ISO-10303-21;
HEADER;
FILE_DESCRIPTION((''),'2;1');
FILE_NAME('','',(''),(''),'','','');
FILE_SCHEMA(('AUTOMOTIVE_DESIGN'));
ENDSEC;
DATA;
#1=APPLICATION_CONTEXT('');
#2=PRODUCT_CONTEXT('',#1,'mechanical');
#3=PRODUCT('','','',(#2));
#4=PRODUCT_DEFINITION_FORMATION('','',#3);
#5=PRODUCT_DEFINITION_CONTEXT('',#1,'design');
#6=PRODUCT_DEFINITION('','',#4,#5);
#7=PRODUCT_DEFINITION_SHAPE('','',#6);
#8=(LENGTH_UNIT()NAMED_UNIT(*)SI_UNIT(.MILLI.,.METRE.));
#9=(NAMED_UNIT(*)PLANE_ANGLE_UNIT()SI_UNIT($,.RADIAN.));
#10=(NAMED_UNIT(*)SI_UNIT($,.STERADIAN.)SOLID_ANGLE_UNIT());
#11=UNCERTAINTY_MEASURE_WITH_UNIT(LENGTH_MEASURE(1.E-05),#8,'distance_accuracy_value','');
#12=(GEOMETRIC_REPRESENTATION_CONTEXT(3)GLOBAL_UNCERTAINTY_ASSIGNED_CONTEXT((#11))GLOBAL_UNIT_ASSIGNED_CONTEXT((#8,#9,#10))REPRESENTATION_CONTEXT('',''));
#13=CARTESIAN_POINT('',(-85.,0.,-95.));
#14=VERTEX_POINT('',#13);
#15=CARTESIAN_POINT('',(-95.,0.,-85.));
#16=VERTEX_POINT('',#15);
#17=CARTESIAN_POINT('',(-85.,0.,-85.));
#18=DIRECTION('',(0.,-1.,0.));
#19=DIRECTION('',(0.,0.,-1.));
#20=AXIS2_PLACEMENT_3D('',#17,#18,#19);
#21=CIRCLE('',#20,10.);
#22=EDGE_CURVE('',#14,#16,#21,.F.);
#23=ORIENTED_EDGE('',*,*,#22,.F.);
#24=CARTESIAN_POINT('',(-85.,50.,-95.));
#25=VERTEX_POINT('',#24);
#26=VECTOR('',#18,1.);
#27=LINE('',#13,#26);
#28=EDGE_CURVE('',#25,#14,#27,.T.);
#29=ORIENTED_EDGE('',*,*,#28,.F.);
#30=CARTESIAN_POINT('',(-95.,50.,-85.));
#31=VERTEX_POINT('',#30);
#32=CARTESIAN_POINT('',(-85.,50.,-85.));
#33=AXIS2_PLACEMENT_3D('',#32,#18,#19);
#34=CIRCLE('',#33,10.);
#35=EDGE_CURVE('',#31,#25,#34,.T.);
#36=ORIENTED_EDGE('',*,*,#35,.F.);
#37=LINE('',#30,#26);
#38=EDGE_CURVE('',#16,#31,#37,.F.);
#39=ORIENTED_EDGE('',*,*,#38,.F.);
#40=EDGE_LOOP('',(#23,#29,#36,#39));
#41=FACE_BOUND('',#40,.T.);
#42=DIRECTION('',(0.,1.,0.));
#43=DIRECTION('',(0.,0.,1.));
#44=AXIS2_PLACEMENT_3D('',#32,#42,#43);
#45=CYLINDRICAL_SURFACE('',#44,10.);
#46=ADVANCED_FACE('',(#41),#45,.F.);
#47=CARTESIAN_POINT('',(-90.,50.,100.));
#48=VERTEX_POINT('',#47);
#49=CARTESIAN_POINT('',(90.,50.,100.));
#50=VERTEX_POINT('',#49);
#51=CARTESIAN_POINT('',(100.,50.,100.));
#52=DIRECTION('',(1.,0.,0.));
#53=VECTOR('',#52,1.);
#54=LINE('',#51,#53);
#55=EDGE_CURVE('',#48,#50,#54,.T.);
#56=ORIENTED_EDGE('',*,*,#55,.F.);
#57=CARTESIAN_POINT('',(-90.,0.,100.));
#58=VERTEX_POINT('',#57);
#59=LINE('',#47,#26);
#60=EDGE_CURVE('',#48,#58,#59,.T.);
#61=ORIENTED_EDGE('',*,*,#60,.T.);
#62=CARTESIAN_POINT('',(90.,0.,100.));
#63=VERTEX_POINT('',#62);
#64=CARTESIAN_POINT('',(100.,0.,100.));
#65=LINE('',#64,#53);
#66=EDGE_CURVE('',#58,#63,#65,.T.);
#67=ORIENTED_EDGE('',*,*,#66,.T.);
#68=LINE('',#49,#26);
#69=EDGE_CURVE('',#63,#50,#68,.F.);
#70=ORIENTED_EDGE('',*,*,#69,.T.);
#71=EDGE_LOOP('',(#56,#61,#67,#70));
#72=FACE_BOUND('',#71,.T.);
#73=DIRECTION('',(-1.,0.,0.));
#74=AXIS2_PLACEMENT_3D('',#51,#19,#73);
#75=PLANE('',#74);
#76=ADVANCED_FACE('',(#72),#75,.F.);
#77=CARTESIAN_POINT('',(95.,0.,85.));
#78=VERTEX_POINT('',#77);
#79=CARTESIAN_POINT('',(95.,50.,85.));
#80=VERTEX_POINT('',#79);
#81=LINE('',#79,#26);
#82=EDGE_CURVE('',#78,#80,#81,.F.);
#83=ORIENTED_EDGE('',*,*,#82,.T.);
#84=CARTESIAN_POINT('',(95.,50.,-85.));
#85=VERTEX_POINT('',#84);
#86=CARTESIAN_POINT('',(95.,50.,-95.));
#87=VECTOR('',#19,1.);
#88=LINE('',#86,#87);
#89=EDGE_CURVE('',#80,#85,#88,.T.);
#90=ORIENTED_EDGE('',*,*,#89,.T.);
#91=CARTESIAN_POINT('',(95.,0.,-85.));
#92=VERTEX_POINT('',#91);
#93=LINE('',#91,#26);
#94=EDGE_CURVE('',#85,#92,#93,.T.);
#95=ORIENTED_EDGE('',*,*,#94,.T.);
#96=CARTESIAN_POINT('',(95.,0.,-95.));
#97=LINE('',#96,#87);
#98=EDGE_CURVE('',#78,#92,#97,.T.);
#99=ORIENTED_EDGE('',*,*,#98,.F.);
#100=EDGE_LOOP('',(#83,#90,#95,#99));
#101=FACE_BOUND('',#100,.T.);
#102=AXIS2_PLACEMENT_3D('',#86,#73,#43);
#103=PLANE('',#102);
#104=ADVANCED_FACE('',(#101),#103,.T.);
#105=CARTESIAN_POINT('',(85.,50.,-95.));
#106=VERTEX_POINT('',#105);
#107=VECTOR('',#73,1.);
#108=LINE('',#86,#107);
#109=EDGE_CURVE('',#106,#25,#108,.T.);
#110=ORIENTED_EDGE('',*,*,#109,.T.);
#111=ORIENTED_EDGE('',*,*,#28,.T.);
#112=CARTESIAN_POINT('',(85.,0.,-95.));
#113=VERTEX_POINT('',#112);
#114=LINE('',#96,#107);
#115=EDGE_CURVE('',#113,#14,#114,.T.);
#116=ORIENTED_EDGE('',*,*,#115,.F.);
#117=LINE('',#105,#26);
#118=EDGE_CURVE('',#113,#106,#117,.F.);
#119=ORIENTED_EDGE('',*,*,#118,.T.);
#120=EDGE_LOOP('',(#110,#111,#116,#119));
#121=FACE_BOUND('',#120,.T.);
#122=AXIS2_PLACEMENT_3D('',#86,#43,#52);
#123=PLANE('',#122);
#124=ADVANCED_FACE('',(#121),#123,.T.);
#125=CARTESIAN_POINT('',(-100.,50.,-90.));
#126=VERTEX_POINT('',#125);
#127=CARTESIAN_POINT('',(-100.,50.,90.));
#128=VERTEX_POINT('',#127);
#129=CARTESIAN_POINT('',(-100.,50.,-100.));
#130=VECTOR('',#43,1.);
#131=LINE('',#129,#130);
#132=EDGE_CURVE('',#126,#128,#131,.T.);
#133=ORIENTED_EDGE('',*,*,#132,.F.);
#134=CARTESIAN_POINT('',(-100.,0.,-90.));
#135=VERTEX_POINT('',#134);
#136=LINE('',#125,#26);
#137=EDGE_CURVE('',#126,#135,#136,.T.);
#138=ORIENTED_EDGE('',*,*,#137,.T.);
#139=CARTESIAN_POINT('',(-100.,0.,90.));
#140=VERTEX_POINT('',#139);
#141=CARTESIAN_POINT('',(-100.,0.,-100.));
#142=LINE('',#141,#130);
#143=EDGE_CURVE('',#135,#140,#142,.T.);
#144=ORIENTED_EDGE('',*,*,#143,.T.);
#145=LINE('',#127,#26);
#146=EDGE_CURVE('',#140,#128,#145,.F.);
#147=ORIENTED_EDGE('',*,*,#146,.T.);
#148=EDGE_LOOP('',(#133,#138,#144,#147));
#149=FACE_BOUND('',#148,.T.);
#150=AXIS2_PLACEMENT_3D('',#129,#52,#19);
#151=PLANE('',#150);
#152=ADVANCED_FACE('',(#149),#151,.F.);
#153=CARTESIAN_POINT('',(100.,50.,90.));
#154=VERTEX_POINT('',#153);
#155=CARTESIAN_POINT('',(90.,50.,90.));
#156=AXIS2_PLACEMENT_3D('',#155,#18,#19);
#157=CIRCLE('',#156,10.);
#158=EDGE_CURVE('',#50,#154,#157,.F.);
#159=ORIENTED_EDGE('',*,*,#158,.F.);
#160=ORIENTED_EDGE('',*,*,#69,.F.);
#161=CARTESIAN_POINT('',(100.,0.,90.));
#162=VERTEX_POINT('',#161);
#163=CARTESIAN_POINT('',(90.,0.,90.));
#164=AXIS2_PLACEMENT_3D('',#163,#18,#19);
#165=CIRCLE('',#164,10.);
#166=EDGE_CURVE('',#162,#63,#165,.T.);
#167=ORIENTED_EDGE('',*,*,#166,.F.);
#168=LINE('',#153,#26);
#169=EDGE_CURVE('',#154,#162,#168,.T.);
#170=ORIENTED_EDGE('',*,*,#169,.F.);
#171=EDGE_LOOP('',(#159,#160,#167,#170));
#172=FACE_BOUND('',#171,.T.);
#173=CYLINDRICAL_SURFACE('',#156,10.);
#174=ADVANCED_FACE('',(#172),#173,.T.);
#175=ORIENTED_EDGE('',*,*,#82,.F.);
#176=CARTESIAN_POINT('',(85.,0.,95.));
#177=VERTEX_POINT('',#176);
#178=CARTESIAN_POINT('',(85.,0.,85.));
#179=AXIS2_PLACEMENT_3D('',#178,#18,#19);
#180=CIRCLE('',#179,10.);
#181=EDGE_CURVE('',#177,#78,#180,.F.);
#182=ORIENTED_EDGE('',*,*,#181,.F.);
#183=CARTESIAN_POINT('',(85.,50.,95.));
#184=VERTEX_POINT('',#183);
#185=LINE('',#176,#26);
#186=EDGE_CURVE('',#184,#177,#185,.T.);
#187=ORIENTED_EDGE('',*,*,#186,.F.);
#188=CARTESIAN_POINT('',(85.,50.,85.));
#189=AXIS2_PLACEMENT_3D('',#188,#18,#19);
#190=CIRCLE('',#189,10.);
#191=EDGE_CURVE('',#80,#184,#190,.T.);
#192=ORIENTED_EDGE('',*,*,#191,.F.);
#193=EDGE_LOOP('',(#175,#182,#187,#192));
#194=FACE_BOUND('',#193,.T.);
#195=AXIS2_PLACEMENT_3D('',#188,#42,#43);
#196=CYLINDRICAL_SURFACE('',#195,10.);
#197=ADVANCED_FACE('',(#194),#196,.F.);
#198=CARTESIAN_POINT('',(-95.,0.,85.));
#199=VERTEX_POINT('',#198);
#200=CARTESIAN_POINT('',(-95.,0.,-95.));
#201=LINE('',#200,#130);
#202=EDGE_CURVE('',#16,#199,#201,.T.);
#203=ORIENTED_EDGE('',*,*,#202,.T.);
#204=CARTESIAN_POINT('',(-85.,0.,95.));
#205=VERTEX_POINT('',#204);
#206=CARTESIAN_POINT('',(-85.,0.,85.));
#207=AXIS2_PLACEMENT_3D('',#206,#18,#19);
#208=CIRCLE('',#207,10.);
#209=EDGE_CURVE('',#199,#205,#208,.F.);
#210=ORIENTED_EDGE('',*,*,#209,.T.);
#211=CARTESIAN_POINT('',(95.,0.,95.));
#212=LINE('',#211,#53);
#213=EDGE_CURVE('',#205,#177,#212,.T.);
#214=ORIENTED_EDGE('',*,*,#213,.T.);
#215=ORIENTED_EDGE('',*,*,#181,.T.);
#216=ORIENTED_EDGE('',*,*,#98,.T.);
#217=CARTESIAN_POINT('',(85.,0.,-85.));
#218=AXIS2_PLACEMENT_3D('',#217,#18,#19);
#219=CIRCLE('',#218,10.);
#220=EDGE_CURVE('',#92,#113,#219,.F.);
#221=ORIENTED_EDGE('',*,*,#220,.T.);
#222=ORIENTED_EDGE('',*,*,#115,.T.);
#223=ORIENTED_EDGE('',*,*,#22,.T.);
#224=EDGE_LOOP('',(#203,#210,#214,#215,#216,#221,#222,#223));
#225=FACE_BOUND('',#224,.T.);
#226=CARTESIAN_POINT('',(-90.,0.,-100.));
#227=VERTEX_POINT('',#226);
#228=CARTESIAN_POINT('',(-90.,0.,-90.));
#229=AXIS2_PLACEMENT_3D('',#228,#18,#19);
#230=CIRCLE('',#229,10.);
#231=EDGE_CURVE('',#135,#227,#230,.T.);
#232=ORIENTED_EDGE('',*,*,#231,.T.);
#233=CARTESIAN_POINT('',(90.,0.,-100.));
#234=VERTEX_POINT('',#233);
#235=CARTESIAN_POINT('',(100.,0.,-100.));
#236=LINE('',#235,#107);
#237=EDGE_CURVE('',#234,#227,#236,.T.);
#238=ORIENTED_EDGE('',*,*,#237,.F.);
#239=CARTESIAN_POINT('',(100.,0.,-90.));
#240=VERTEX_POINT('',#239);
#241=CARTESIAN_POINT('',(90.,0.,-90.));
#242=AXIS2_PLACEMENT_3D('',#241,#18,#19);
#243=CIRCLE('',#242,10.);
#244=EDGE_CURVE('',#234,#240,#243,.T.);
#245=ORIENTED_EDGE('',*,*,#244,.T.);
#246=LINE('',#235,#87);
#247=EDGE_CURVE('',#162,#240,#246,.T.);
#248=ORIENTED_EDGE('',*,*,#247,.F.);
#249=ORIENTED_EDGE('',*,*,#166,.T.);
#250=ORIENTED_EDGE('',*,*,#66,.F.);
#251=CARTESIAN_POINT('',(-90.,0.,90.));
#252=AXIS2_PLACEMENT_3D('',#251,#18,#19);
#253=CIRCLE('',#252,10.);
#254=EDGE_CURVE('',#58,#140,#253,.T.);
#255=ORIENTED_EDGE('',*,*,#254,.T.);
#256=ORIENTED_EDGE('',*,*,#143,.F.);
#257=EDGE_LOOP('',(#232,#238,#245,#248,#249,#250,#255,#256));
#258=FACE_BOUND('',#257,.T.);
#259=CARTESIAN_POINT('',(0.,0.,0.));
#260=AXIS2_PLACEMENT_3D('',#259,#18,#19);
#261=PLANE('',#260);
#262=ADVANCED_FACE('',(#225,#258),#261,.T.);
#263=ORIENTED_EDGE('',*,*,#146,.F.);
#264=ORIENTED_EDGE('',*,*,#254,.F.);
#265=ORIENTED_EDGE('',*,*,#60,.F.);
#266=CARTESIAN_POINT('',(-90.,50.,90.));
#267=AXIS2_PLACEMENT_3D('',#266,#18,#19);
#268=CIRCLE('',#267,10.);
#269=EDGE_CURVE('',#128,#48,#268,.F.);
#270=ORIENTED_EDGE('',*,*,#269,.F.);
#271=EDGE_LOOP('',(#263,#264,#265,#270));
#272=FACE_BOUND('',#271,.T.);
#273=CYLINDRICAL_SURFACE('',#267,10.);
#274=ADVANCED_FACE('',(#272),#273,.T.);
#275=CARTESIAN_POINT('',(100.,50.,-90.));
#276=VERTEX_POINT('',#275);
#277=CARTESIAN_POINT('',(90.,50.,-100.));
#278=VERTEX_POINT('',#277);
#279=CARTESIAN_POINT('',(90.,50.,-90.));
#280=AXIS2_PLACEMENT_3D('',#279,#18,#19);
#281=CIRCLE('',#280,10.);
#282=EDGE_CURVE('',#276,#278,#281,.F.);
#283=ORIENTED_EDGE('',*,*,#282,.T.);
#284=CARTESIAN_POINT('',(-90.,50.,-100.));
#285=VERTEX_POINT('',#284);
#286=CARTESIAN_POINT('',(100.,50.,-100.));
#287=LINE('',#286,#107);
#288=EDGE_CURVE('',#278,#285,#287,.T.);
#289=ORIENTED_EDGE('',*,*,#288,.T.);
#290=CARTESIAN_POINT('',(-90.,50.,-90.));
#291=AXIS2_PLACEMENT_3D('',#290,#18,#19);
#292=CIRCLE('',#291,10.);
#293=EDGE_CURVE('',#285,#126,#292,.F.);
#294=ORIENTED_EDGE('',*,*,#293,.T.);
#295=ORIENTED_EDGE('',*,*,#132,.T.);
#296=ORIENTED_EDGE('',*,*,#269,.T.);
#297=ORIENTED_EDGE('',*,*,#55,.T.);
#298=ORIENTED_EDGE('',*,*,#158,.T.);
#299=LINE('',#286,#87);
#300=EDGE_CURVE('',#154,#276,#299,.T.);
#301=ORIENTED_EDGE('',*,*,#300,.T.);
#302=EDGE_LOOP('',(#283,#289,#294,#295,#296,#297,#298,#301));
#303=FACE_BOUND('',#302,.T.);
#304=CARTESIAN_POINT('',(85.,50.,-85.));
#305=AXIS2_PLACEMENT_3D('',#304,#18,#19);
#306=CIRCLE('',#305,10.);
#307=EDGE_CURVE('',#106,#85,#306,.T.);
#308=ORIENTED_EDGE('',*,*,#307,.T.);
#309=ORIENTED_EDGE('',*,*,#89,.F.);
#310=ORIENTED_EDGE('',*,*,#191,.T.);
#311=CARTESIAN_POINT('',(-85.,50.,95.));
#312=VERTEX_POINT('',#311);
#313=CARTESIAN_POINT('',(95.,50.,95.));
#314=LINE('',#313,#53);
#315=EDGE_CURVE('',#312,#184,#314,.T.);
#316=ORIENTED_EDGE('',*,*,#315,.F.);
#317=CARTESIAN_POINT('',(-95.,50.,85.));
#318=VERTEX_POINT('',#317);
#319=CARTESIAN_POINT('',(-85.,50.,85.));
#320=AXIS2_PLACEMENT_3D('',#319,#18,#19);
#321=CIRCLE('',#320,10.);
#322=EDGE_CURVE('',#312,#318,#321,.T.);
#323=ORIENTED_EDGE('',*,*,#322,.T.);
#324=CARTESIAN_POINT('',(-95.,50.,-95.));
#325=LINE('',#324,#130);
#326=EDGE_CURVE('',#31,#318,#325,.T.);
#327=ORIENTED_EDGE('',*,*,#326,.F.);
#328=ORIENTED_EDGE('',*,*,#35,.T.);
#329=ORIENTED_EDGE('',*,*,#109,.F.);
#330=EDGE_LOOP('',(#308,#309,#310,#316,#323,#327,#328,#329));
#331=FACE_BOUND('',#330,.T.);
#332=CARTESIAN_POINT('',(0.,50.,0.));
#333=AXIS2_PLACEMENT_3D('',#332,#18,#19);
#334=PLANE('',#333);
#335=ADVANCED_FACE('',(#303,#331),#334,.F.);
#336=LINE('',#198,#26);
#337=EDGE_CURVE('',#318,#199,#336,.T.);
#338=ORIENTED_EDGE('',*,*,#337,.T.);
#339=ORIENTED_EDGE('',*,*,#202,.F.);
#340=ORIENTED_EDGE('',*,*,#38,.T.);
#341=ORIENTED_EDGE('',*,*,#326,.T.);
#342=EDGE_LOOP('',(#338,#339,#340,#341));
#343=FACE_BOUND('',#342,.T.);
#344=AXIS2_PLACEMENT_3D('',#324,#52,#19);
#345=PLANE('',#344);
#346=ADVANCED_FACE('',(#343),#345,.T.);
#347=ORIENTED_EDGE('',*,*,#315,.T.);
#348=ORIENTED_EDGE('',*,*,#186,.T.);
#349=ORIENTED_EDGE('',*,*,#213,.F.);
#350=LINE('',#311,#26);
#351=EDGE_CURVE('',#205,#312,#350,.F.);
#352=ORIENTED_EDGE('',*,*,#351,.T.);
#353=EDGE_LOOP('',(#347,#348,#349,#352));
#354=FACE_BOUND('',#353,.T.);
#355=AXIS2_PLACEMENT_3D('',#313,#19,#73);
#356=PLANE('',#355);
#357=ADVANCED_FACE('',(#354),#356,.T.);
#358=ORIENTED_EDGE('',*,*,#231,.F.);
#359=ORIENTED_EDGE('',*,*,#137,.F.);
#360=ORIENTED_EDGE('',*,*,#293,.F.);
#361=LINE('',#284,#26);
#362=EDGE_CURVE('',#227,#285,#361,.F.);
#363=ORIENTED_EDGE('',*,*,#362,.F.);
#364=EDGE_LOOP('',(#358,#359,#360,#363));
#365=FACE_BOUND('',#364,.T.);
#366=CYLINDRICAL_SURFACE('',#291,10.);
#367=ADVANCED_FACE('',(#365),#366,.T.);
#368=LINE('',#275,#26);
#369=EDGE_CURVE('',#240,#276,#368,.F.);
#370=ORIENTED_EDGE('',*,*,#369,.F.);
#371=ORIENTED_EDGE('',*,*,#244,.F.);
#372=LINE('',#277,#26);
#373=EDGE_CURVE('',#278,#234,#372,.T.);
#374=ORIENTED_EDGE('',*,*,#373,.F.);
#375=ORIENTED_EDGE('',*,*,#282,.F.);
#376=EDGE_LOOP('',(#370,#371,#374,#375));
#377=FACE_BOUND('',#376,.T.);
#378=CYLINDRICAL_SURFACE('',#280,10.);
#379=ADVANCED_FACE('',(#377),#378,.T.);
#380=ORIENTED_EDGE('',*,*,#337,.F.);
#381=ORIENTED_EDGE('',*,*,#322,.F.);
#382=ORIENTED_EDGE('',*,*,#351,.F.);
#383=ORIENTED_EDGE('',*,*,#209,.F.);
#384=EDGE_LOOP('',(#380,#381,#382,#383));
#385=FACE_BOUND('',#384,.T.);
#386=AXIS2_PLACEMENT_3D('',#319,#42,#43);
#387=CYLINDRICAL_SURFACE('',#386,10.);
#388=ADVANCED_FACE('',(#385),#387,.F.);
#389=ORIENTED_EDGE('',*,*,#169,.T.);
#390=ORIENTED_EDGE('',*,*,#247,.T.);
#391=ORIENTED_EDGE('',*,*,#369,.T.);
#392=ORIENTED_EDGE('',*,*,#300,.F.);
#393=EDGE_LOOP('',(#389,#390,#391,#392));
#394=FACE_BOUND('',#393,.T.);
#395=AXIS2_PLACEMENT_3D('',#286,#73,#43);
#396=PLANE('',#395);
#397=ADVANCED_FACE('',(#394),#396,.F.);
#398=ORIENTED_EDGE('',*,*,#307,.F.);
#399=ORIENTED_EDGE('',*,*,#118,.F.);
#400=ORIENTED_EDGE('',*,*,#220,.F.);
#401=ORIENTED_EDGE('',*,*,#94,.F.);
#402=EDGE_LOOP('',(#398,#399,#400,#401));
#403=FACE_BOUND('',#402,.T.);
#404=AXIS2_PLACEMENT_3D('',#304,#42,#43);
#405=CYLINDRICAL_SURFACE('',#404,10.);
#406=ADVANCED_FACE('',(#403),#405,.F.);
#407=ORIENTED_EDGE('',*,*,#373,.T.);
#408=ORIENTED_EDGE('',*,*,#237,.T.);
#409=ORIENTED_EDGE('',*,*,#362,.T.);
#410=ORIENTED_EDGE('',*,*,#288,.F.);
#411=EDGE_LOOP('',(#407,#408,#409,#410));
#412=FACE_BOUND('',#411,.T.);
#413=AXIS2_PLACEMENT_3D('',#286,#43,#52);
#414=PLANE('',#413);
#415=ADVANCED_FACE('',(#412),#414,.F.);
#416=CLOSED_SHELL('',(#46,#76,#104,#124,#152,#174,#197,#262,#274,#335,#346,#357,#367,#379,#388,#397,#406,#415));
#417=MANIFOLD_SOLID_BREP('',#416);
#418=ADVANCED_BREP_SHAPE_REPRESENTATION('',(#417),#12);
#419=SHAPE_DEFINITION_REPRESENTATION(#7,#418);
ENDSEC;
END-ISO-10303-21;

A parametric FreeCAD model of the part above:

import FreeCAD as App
import Part
import Sketcher

V = App.Vector
Q = App.Units.Quantity


def edges_at(feature, points):
    """Names of the edges that pass closest to the given points."""
    edges = feature.Shape.Edges
    near = lambda p: min(range(len(edges)), key=lambda i: edges[i].distToShape(Part.Vertex(*p))[0])
    return sorted({f"Edge{near(p) + 1}" for p in points})


def add_polygon(sketch, points):
    """Adds a closed chain of lines whose ends are joined by coincident constraints."""
    first, n = sketch.GeometryCount, len(points)
    for a, b in zip(points, points[1:] + points[:1]):
        sketch.addGeometry(Part.LineSegment(App.Vector(*a, 0), App.Vector(*b, 0)), False)
    for i in range(n):
        sketch.addConstraint(Sketcher.Constraint("Coincident", first + i, 2, first + (i + 1) % n, 1))

doc = App.newDocument("Part")
body = doc.addObject("PartDesign::Body", "Body")

sketch1 = doc.addObject("Sketcher::SketchObject", "Sketch")
body.addObject(sketch1)
sketch1.AttachmentSupport = (doc.XZ_Plane, [""])
sketch1.MapMode = "FlatFace"
add_polygon(sketch1, [(-100, -100), (-100, 100), (100, 100), (100, -100)])
add_polygon(sketch1, [(95, 95), (-95, 95), (-95, -95), (95, -95)])
sketch1.addConstraint(Sketcher.Constraint("Vertical", 0))
sketch1.addConstraint(Sketcher.Constraint("Horizontal", 1))
sketch1.addConstraint(Sketcher.Constraint("Vertical", 2))
sketch1.addConstraint(Sketcher.Constraint("Horizontal", 3))
sketch1.addConstraint(Sketcher.Constraint("Horizontal", 4))
sketch1.addConstraint(Sketcher.Constraint("Vertical", 5))
sketch1.addConstraint(Sketcher.Constraint("Horizontal", 6))
sketch1.addConstraint(Sketcher.Constraint("Vertical", 7))
sketch1.addConstraint(Sketcher.Constraint("Symmetric", 0, 2, 2, 2, -1, 1))
sketch1.addConstraint(Sketcher.Constraint("Symmetric", 4, 2, 6, 2, -1, 1))
sketch1.addConstraint(Sketcher.Constraint("Equal", 3, 0))
sketch1.addConstraint(Sketcher.Constraint("Equal", 6, 5))
sketch1.addConstraint(Sketcher.Constraint("DistanceX", 1, 1, 1, 2, Q("200 mm")))
sketch1.addConstraint(Sketcher.Constraint("DistanceX", 4, 2, 4, 1, Q("190 mm")))
pad1 = doc.addObject("PartDesign::Pad", "Pad")
body.addObject(pad1)
pad1.Profile = sketch1
pad1.Length = 50
pad1.Reversed = True
doc.recompute()

fillet = doc.addObject("PartDesign::Fillet", "Fillet")
body.addObject(fillet)
fillet.Base = (pad1, edges_at(pad1, [
    (95, 25, 95),
    (95, 25, -95),
    (-95, 25, -95),
    (-95, 25, 95),
    (-100, 25, -100),
    (100, 25, -100),
    (100, 25, 100),
    (-100, 25, 100),
]))
fillet.Radius = 10

doc.recompute()
